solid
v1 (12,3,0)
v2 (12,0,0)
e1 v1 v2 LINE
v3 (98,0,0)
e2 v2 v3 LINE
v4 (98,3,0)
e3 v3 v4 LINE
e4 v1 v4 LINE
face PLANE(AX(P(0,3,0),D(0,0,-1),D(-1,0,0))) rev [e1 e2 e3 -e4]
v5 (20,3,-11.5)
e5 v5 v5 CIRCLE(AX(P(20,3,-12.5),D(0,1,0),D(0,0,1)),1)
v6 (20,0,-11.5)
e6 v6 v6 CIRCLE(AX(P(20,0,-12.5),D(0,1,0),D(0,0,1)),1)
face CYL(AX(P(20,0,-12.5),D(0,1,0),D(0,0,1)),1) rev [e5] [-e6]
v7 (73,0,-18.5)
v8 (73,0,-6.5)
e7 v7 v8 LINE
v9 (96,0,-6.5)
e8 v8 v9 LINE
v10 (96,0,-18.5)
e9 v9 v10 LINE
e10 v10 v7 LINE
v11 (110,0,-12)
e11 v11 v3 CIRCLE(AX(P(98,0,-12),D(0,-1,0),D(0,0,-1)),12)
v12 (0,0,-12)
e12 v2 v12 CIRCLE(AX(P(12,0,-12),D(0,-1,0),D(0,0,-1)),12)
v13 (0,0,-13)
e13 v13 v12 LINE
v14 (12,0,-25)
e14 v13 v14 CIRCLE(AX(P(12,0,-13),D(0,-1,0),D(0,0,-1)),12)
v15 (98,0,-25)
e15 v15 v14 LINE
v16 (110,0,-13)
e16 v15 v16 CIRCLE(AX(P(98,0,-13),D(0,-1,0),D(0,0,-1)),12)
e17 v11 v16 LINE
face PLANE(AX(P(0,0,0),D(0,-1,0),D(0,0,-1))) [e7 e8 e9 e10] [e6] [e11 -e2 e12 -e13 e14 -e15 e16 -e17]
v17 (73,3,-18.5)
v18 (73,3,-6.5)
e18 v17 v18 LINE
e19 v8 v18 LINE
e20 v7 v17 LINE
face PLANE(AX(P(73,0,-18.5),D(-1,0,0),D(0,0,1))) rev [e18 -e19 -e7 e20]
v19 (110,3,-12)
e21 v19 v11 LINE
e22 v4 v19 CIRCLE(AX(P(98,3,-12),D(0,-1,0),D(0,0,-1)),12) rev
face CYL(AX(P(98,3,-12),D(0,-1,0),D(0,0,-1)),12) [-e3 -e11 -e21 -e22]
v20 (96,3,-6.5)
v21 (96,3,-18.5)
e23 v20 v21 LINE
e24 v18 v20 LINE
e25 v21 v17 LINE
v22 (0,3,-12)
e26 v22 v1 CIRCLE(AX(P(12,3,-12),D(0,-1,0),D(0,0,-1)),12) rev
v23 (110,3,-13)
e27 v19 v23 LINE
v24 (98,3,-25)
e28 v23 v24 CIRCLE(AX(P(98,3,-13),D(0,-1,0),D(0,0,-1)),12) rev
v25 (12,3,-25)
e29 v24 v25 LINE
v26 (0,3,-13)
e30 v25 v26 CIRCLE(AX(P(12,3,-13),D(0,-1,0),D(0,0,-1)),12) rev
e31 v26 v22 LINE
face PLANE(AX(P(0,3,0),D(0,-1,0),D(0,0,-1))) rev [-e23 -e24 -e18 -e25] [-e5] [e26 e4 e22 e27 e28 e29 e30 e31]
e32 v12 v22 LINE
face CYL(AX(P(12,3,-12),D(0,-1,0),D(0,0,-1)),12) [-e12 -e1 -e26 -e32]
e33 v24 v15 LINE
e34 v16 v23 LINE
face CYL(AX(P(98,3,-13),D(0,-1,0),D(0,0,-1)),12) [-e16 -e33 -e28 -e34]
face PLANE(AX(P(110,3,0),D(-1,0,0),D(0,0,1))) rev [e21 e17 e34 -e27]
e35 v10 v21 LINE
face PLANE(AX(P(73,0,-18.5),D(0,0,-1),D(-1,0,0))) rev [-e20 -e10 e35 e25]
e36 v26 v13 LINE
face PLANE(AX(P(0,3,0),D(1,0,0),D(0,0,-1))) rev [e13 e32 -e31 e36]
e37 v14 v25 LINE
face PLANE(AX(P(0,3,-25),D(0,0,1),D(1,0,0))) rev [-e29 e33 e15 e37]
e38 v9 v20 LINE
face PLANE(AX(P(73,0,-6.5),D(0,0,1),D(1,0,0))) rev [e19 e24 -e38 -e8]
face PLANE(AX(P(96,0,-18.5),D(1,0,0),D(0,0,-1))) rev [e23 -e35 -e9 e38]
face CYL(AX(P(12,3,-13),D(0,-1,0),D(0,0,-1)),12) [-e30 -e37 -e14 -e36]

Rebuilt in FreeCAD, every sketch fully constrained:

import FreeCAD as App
import Part
import Sketcher

V = App.Vector
Q = App.Units.Quantity


def edges_at(feature, points):
    """Names of the edges that pass closest to the given points."""
    edges = feature.Shape.Edges
    near = lambda p: min(range(len(edges)), key=lambda i: edges[i].distToShape(Part.Vertex(*p))[0])
    return sorted({f"Edge{near(p) + 1}" for p in points})

doc = App.newDocument("Part")
params = doc.addObject("Spreadsheet::Sheet", "Params")
for row, (alias, value) in enumerate([
    ("sketch1_width", "110 mm"),
    ("sketch1_height", "25 mm"),
    ("pad1_length", "3 mm"),
    ("sketch2_width", "23 mm"),
    ("sketch2_height", "12 mm"),
    ("sketch3_diameter", "2 mm"),
    ("fillet_radius", "12 mm"),
], start=1):
    params.set(f"A{row}", alias)
    params.set(f"B{row}", "=" + value)
    params.setAlias(f"B{row}", alias)

body = doc.addObject("PartDesign::Body", "Body")

# Sketch on XZ plane
sketch1 = body.newObject("Sketcher::SketchObject", "Sketch")
sketch1.AttachmentSupport = (doc.getObject("XZ_Plane"), [""])
sketch1.MapMode = "FlatFace"
sketch1.addGeometry([
    Part.LineSegment(V(0, -25, 0), V(0, 0, 0)),
    Part.LineSegment(V(0, 0, 0), V(110, 0, 0)),
    Part.LineSegment(V(110, 0, 0), V(110, -25, 0)),
    Part.LineSegment(V(110, -25, 0), V(0, -25, 0)),
], False)
sketch1.addConstraint([
    Sketcher.Constraint("Coincident", 0, 2, 1, 1),
    Sketcher.Constraint("Coincident", 1, 2, 2, 1),
    Sketcher.Constraint("Coincident", 2, 2, 3, 1),
    Sketcher.Constraint("Coincident", 3, 2, 0, 1),
    Sketcher.Constraint("Vertical", 0),
    Sketcher.Constraint("Horizontal", 1),
    Sketcher.Constraint("Vertical", 2),
    Sketcher.Constraint("Horizontal", 3),
    Sketcher.Constraint("Coincident", 0, 2, -1, 1),
    Sketcher.Constraint("DistanceX", 1, 1, 1, 2, Q("110 mm")),
    Sketcher.Constraint("DistanceY", 0, 1, 0, 2, Q("25 mm")),
])
sketch1.setExpression("Constraints[9]", "Params.sketch1_width")
sketch1.setExpression("Constraints[10]", "Params.sketch1_height")
pad1 = body.newObject("PartDesign::Pad", "Pad")
pad1.Profile = sketch1
pad1.setExpression("Length", "Params.pad1_length")
pad1.Reversed = True

# Sketch on XZ plane
sketch2 = body.newObject("Sketcher::SketchObject", "Sketch001")
sketch2.AttachmentSupport = (doc.getObject("XZ_Plane"), [""])
sketch2.MapMode = "FlatFace"
sketch2.AttachmentOffset = App.Placement(V(0, 0, -3), App.Rotation())
sketch2.addGeometry([
    Part.LineSegment(V(73, -18.5, 0), V(73, -6.5, 0)),
    Part.LineSegment(V(73, -6.5, 0), V(96, -6.5, 0)),
    Part.LineSegment(V(96, -6.5, 0), V(96, -18.5, 0)),
    Part.LineSegment(V(96, -18.5, 0), V(73, -18.5, 0)),
], False)
sketch2.addConstraint([
    Sketcher.Constraint("Coincident", 0, 2, 1, 1),
    Sketcher.Constraint("Coincident", 1, 2, 2, 1),
    Sketcher.Constraint("Coincident", 2, 2, 3, 1),
    Sketcher.Constraint("Coincident", 3, 2, 0, 1),
    Sketcher.Constraint("Vertical", 0),
    Sketcher.Constraint("Horizontal", 1),
    Sketcher.Constraint("Vertical", 2),
    Sketcher.Constraint("Horizontal", 3),
    Sketcher.Constraint("DistanceX", 1, 1, 1, 2, Q("23 mm")),
    Sketcher.Constraint("DistanceY", 0, 1, 0, 2, Q("12 mm")),
    Sketcher.Constraint("DistanceX", -1, 1, 0, 2, Q("73 mm")),
    Sketcher.Constraint("DistanceY", 0, 2, -1, 1, Q("6.5 mm")),
])
sketch2.setExpression("Constraints[8]", "Params.sketch2_width")
sketch2.setExpression("Constraints[9]", "Params.sketch2_height")
pocket1 = body.newObject("PartDesign::Pocket", "Pocket")
pocket1.Profile = sketch2
pocket1.Type = "ThroughAll"
pocket1.Reversed = True

# Sketch on XZ plane
sketch3 = body.newObject("Sketcher::SketchObject", "Sketch002")
sketch3.AttachmentSupport = (doc.getObject("XZ_Plane"), [""])
sketch3.MapMode = "FlatFace"
sketch3.AttachmentOffset = App.Placement(V(0, 0, -3), App.Rotation())
sketch3.addGeometry(Part.Circle(V(20, -12.5, 0), V(0, 0, 1), 1), False)
sketch3.addConstraint([
    Sketcher.Constraint("Diameter", 0, Q("2 mm")),
    Sketcher.Constraint("DistanceX", -1, 1, 0, 3, Q("20 mm")),
    Sketcher.Constraint("DistanceY", 0, 3, -1, 1, Q("12.5 mm")),
])
sketch3.setExpression("Constraints[0]", "Params.sketch3_diameter")
pocket2 = body.newObject("PartDesign::Pocket", "Pocket001")
pocket2.Profile = sketch3
pocket2.Type = "ThroughAll"
pocket2.Reversed = True
doc.recompute()

fillet = body.newObject("PartDesign::Fillet", "Fillet")
fillet.Base = (pocket2, edges_at(pocket2, [
    (0, 1.5, -25),
    (110, 1.5, -25),
    (110, 1.5, 0),
    (0, 1.5, 0),
]))
fillet.setExpression("Radius", "Params.fillet_radius")

doc.recompute()
